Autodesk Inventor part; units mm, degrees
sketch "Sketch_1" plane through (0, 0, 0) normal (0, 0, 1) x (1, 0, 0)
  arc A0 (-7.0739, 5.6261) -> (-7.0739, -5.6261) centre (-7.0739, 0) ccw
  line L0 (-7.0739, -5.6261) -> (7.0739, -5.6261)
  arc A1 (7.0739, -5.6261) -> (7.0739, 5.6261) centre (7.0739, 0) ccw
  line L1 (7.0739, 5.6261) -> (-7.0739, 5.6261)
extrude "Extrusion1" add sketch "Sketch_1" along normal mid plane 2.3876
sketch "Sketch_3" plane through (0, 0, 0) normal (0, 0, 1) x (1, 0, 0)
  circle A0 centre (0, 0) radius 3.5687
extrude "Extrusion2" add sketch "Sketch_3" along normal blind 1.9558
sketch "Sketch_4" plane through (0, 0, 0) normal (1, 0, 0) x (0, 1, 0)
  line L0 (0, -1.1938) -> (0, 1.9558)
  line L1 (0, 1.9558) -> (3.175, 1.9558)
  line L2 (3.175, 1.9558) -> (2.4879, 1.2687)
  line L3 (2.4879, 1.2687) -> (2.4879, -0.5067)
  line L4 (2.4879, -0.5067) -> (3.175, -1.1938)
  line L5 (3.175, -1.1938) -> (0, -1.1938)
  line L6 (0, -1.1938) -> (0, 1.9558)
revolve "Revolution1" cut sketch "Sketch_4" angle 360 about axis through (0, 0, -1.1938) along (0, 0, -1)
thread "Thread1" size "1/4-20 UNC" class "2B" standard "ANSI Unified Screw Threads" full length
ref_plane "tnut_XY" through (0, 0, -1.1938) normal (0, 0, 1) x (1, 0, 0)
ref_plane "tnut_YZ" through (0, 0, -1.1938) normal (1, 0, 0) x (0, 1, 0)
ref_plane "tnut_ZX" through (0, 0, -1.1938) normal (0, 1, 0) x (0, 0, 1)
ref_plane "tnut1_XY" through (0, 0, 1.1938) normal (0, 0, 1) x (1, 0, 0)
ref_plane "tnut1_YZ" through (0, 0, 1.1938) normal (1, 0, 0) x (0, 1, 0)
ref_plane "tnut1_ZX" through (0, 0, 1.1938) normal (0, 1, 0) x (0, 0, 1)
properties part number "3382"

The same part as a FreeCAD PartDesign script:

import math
import FreeCAD as App
import Part
import Sketcher

V = App.Vector
Q = App.Units.Quantity


def add_polygon(sketch, points):
    """Adds a closed chain of lines whose ends are joined by coincident constraints."""
    first, n = sketch.GeometryCount, len(points)
    for a, b in zip(points, points[1:] + points[:1]):
        sketch.addGeometry(Part.LineSegment(App.Vector(*a, 0), App.Vector(*b, 0)), False)
    for i in range(n):
        sketch.addConstraint(Sketcher.Constraint("Coincident", first + i, 2, first + (i + 1) % n, 1))

doc = App.newDocument("Part")
params = doc.addObject("Spreadsheet::Sheet", "Params")
for row, (alias, value) in enumerate([
    ("sketch1_width", "0.557 in"),
    ("pad1_length", "0.094 in"),
    ("sketch2_diameter", "0.281 in"),
    ("pad2_length", "0.077 in"),
    ("sketch3_width", "0.125 in"),
    ("sketch3_height", "0.124 in"),
    ("groove_angle", "360 deg"),
], start=1):
    params.set(f"A{row}", alias)
    params.set(f"B{row}", "=" + value)
    params.setAlias(f"B{row}", alias)

body = doc.addObject("PartDesign::Body", "Body")

# Sketch on XY plane
sketch1 = body.newObject("Sketcher::SketchObject", "Sketch")
sketch1.AttachmentSupport = (doc.getObject("XY_Plane"), [""])
sketch1.MapMode = "FlatFace"
sketch1.addGeometry(Part.LineSegment(V(7, 6, 0), V(-7, 6, 0)), False)
sketch1.addGeometry(Part.ArcOfCircle(Part.Circle(V(-7, 0, 0), V(0, 0, 1), 6), math.radians(90), math.radians(270)), False)
sketch1.addGeometry(Part.LineSegment(V(-7, -6, 0), V(7, -6, 0)), False)
sketch1.addGeometry(Part.ArcOfCircle(Part.Circle(V(7, 0, 0), V(0, 0, 1), 6), math.radians(-90), math.radians(90)), False)
sketch1.addConstraint(Sketcher.Constraint("Tangent", 0, 2, 1, 1))
sketch1.addConstraint(Sketcher.Constraint("Tangent", 1, 2, 2, 1))
sketch1.addConstraint(Sketcher.Constraint("Tangent", 2, 2, 3, 1))
sketch1.addConstraint(Sketcher.Constraint("Tangent", 3, 2, 0, 1))
sketch1.addConstraint(Sketcher.Constraint("Horizontal", 0))
sketch1.addConstraint(Sketcher.Constraint("Horizontal", 2))
sketch1.addConstraint(Sketcher.Constraint("Symmetric", 1, 3, 3, 3, -1, 1))
sketch1.addConstraint(Sketcher.Constraint("Radius", 1, Q("0.2215 in")))
sketch1.addConstraint(Sketcher.Constraint("DistanceX", 0, 2, 0, 1, Q("0.557 in")))
sketch1.setExpression("Constraints[8]", "Params.sketch1_width")
pad1 = body.newObject("PartDesign::Pad", "Pad")
pad1.Profile = sketch1
pad1.setExpression("Length", "Params.pad1_length")
pad1.Midplane = True

# Sketch on XY plane
sketch2 = body.newObject("Sketcher::SketchObject", "Sketch001")
sketch2.AttachmentSupport = (doc.getObject("XY_Plane"), [""])
sketch2.MapMode = "FlatFace"
sketch2.addGeometry(Part.Circle(V(0, 0, 0), V(0, 0, 1), 3.6), False)
sketch2.addConstraint(Sketcher.Constraint("Coincident", 0, 3, -1, 1))
sketch2.addConstraint(Sketcher.Constraint("Diameter", 0, Q("0.281 in")))
sketch2.setExpression("Constraints[1]", "Params.sketch2_diameter")
pad2 = body.newObject("PartDesign::Pad", "Pad001")
pad2.Profile = sketch2
pad2.setExpression("Length", "Params.pad2_length")

# Sketch on YZ plane
sketch3 = body.newObject("Sketcher::SketchObject", "Sketch002")
sketch3.AttachmentSupport = (doc.getObject("YZ_Plane"), [""])
sketch3.MapMode = "FlatFace"
add_polygon(sketch3, [(0, 2), (0, -1.2), (3.2, -1.2), (2.5, -0.5), (2.5, 1.3), (3.2, 2)])  # lines 0-5
sketch3.addConstraint(Sketcher.Constraint("Vertical", 0))
sketch3.addConstraint(Sketcher.Constraint("Horizontal", 1))
sketch3.addConstraint(Sketcher.Constraint("Vertical", 3))
sketch3.addConstraint(Sketcher.Constraint("Horizontal", 5))
sketch3.addConstraint(Sketcher.Constraint("PointOnObject", 0, 2, -2))
sketch3.addConstraint(Sketcher.Constraint("Perpendicular", 2, 4))
sketch3.addConstraint(Sketcher.Constraint("Vertical", 1, 2, 4, 2))
sketch3.addConstraint(Sketcher.Constraint("Equal", 2, 4))
sketch3.addConstraint(Sketcher.Constraint("DistanceX", 1, 1, 1, 2, Q("0.125 in")))
sketch3.addConstraint(Sketcher.Constraint("DistanceY", 0, 2, 0, 1, Q("0.124 in")))
sketch3.addConstraint(Sketcher.Constraint("DistanceY", 3, 1, 3, 2, Q("0.0699 in")))
sketch3.addConstraint(Sketcher.Constraint("DistanceY", 0, 2, -1, 1, Q("0.047 in")))
sketch3.setExpression("Constraints[14]", "Params.sketch3_width")
sketch3.setExpression("Constraints[15]", "Params.sketch3_height")
groove = body.newObject("PartDesign::Groove", "Groove")
groove.Profile = sketch3
groove.ReferenceAxis = (sketch3, ["V_Axis"])
groove.setExpression("Angle", "Params.groove_angle")

doc.recompute()
